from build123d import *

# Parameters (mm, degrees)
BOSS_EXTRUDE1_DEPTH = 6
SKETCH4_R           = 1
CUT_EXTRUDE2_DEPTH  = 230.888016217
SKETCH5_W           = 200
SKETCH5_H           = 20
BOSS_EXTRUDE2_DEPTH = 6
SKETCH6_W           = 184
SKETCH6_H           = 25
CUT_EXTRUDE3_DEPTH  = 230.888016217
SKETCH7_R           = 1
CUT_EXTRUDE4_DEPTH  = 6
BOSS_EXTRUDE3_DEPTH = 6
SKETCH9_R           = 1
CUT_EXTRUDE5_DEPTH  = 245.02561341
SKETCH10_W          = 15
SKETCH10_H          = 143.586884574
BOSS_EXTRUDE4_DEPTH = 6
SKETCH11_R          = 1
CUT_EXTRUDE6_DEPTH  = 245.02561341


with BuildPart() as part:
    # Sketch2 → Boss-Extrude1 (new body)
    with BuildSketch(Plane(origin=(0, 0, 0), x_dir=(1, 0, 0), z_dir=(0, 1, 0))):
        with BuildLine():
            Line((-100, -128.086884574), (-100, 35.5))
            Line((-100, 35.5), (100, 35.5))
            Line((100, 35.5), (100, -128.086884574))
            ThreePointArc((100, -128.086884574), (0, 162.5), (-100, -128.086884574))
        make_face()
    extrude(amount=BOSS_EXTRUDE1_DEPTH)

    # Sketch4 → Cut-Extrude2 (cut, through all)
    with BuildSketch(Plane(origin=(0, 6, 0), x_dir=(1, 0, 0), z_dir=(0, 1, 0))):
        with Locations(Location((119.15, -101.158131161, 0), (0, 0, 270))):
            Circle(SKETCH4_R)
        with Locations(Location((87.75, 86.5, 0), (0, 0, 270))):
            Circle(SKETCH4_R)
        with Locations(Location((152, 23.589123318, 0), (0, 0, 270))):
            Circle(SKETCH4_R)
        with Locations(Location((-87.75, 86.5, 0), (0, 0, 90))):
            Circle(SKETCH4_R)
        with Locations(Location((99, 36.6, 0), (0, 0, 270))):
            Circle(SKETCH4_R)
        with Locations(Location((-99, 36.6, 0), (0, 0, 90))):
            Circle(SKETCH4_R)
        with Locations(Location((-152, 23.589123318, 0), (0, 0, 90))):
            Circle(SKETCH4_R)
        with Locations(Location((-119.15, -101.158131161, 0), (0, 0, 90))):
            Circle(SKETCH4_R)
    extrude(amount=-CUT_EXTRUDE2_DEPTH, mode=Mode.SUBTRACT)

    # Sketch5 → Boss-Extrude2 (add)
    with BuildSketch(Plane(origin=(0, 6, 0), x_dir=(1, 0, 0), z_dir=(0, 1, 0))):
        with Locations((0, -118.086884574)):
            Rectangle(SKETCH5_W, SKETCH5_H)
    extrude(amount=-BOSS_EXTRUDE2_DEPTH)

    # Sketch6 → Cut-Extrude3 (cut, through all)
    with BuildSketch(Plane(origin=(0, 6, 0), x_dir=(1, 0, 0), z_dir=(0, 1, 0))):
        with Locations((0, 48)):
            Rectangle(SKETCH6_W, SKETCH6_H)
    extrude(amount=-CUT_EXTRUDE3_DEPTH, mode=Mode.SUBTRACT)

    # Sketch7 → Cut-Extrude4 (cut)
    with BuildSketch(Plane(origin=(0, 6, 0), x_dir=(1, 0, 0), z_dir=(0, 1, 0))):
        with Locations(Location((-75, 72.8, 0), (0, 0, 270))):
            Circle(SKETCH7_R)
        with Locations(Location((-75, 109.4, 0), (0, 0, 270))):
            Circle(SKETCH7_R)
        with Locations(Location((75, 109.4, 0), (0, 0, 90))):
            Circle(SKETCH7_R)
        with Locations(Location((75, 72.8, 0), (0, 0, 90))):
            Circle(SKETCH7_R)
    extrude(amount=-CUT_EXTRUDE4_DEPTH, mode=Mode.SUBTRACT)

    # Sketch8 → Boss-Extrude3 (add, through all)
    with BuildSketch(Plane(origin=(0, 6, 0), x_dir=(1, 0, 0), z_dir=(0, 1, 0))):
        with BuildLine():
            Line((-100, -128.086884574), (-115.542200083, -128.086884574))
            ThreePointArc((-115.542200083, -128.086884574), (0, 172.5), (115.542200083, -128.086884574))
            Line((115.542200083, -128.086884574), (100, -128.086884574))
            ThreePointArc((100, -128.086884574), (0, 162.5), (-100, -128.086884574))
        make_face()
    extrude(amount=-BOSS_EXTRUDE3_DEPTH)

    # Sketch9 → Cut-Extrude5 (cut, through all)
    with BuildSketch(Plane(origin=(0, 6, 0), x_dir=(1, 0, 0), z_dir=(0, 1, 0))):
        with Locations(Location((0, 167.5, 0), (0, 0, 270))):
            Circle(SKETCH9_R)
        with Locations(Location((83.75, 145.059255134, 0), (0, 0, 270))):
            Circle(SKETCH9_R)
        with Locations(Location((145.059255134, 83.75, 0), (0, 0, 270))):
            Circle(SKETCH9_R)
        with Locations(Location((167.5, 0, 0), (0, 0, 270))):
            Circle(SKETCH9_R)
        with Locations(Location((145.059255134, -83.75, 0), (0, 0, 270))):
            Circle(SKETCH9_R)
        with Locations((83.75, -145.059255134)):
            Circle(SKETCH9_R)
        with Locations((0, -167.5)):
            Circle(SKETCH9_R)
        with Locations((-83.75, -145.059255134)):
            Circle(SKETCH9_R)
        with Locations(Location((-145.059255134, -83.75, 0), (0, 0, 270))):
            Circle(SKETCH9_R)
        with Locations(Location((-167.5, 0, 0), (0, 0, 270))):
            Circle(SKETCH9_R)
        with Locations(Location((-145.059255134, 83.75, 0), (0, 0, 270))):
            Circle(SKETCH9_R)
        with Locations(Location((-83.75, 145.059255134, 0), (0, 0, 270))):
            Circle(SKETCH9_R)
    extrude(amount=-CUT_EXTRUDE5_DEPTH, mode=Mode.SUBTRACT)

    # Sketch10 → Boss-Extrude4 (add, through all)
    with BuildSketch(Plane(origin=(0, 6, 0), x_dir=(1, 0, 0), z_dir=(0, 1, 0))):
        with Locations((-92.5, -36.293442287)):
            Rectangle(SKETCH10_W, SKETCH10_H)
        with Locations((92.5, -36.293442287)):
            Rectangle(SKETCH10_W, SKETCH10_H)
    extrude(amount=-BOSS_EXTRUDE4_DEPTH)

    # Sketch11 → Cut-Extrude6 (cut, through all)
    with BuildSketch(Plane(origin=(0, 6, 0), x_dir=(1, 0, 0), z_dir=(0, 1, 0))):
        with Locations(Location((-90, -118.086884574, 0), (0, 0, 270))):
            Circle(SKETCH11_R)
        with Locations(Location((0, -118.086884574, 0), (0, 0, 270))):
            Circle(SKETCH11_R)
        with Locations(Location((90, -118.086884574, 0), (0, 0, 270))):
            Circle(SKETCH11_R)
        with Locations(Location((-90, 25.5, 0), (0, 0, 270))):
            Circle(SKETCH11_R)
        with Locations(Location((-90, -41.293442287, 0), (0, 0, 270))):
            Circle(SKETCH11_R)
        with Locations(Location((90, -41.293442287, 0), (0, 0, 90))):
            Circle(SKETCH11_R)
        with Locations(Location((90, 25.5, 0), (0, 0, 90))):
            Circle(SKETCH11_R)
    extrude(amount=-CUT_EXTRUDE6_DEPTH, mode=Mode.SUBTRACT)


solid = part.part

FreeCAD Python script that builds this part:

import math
import FreeCAD as App
import Part
import Sketcher

V = App.Vector

doc = App.newDocument("Part")
body = doc.addObject("PartDesign::Body", "Body")

sketch1 = body.newObject("Sketcher::SketchObject", "Sketch")
sketch1.AttachmentSupport = (doc.getObject("XZ_Plane"), [""])
sketch1.MapMode = "FlatFace"
sketch1.addGeometry(Part.LineSegment(V(-100, 128, 0), V(-100, -36, 0)), False)
sketch1.addGeometry(Part.LineSegment(V(-100, -36, 0), V(100, -36, 0)), False)
sketch1.addGeometry(Part.LineSegment(V(100, -36, 0), V(100, 128, 0)), False)
sketch1.addGeometry(Part.ArcOfCircle(Part.Circle(V(0, 0, 0), V(0, 0, 1), 162), math.radians(128), math.radians(412)), False)
sketch1.addConstraint(Sketcher.Constraint("Coincident", 0, 2, 1, 1))
sketch1.addConstraint(Sketcher.Constraint("Coincident", 1, 2, 2, 1))
sketch1.addConstraint(Sketcher.Constraint("Coincident", 2, 2, 3, 2))
sketch1.addConstraint(Sketcher.Constraint("Coincident", 3, 1, 0, 1))
sketch1.addConstraint(Sketcher.Constraint("Vertical", 0))
sketch1.addConstraint(Sketcher.Constraint("Horizontal", 1))
sketch1.addConstraint(Sketcher.Constraint("Vertical", 2))
sketch1.addConstraint(Sketcher.Constraint("Coincident", 3, 3, -1, 1))
sketch1.addConstraint(Sketcher.Constraint("Horizontal", 2, 2, 3, 1))
sketch1.addConstraint(Sketcher.Constraint("Radius", 3, 162.5))
sketch1.addConstraint(Sketcher.Constraint("DistanceX", 1, 1, 1, 2, 200.0))
sketch1.addConstraint(Sketcher.Constraint("DistanceY", 0, 2, -1, 1, 35.5))
pad1 = body.newObject("PartDesign::Pad", "Pad")
pad1.Profile = sketch1
pad1.Length = 6
pad1.Reversed = True

sketch2 = body.newObject("Sketcher::SketchObject", "Sketch001")
sketch2.AttachmentSupport = (doc.getObject("XZ_Plane"), [""])
sketch2.MapMode = "FlatFace"
sketch2.AttachmentOffset = App.Placement(V(0, 0, -6), App.Rotation())
sketch2.addGeometry(Part.Circle(V(119.2, 101.2, 0), V(0, 0, 1), 1), False)
sketch2.addGeometry(Part.Circle(V(87.8, -86.5, 0), V(0, 0, 1), 1), False)
sketch2.addGeometry(Part.Circle(V(152, -23.6, 0), V(0, 0, 1), 1), False)
sketch2.addGeometry(Part.Circle(V(-87.8, -86.5, 0), V(0, 0, 1), 1), False)
sketch2.addGeometry(Part.Circle(V(99, -36.6, 0), V(0, 0, 1), 1), False)
sketch2.addGeometry(Part.Circle(V(-99, -36.6, 0), V(0, 0, 1), 1), False)
sketch2.addGeometry(Part.Circle(V(-152, -23.6, 0), V(0, 0, 1), 1), False)
sketch2.addGeometry(Part.Circle(V(-119.2, 101.2, 0), V(0, 0, 1), 1), False)
sketch2.addConstraint(Sketcher.Constraint("Equal", 0, 1))
sketch2.addConstraint(Sketcher.Constraint("Equal", 1, 2))
sketch2.addConstraint(Sketcher.Constraint("Equal", 2, 3))
sketch2.addConstraint(Sketcher.Constraint("Equal", 3, 4))
sketch2.addConstraint(Sketcher.Constraint("Equal", 4, 5))
sketch2.addConstraint(Sketcher.Constraint("Equal", 5, 6))
sketch2.addConstraint(Sketcher.Constraint("Equal", 6, 7))
sketch2.addConstraint(Sketcher.Constraint("Symmetric", 1, 3, 3, 3, -2))
sketch2.addConstraint(Sketcher.Constraint("Symmetric", 4, 3, 5, 3, -2))
sketch2.addConstraint(Sketcher.Constraint("Symmetric", 2, 3, 6, 3, -2))
sketch2.addConstraint(Sketcher.Constraint("Symmetric", 0, 3, 7, 3, -2))
sketch2.addConstraint(Sketcher.Constraint("Diameter", 0, 2.0))
sketch2.addConstraint(Sketcher.Constraint("DistanceX", -1, 1, 2, 3, 152.0))
sketch2.addConstraint(Sketcher.Constraint("DistanceX", -1, 1, 4, 3, 99.0))
sketch2.addConstraint(Sketcher.Constraint("DistanceY", 1, 3, -1, 1, 86.5))
sketch2.addConstraint(Sketcher.Constraint("DistanceY", 4, 3, -1, 1, 36.6))
sketch2.addConstraint(Sketcher.Constraint("DistanceX", 1, 3, 0, 3, 31.4))
sketch2.addConstraint(Sketcher.Constraint("DistanceX", 3, 3, 1, 3, 175.5))
sketch2.addConstraint(Sketcher.Constraint("DistanceY", -1, 1, 0, 3, 101.158131))
sketch2.addConstraint(Sketcher.Constraint("DistanceY", 2, 3, -1, 1, 23.589123))
pocket1 = body.newObject("PartDesign::Pocket", "Pocket")
pocket1.Profile = sketch2
pocket1.Type = "ThroughAll"
pocket1.Reversed = True

sketch3 = body.newObject("Sketcher::SketchObject", "Sketch002")
sketch3.AttachmentSupport = (doc.getObject("XZ_Plane"), [""])
sketch3.MapMode = "FlatFace"
sketch3.AttachmentOffset = App.Placement(V(0, 0, -6), App.Rotation())
sketch3.addGeometry(Part.LineSegment(V(-100, 108, 0), V(-100, 128, 0)), False)
sketch3.addGeometry(Part.LineSegment(V(-100, 128, 0), V(100, 128, 0)), False)
sketch3.addGeometry(Part.LineSegment(V(100, 128, 0), V(100, 108, 0)), False)
sketch3.addGeometry(Part.LineSegment(V(100, 108, 0), V(-100, 108, 0)), False)
sketch3.addConstraint(Sketcher.Constraint("Coincident", 0, 2, 1, 1))
sketch3.addConstraint(Sketcher.Constraint("Coincident", 1, 2, 2, 1))
sketch3.addConstraint(Sketcher.Constraint("Coincident", 2, 2, 3, 1))
sketch3.addConstraint(Sketcher.Constraint("Coincident", 3, 2, 0, 1))
sketch3.addConstraint(Sketcher.Constraint("Vertical", 0))
sketch3.addConstraint(Sketcher.Constraint("Horizontal", 1))
sketch3.addConstraint(Sketcher.Constraint("Vertical", 2))
sketch3.addConstraint(Sketcher.Constraint("Horizontal", 3))
sketch3.addConstraint(Sketcher.Constraint("DistanceX", 1, 1, 1, 2, 200.0))
sketch3.addConstraint(Sketcher.Constraint("DistanceY", 0, 1, 0, 2, 20.0))
sketch3.addConstraint(Sketcher.Constraint("DistanceX", 0, 2, -1, 1, 100.0))
sketch3.addConstraint(Sketcher.Constraint("DistanceY", -1, 1, 0, 2, 128.086885))
pad2 = body.newObject("PartDesign::Pad", "Pad001")
pad2.Profile = sketch3
pad2.Length = 6

sketch4 = body.newObject("Sketcher::SketchObject", "Sketch003")
sketch4.AttachmentSupport = (doc.getObject("XZ_Plane"), [""])
sketch4.MapMode = "FlatFace"
sketch4.AttachmentOffset = App.Placement(V(0, 0, -6), App.Rotation())
sketch4.addGeometry(Part.LineSegment(V(-92, -60, 0), V(-92, -36, 0)), False)
sketch4.addGeometry(Part.LineSegment(V(-92, -36, 0), V(92, -36, 0)), False)
sketch4.addGeometry(Part.LineSegment(V(92, -36, 0), V(92, -60, 0)), False)
sketch4.addGeometry(Part.LineSegment(V(92, -60, 0), V(-92, -60, 0)), False)
sketch4.addConstraint(Sketcher.Constraint("Coincident", 0, 2, 1, 1))
sketch4.addConstraint(Sketcher.Constraint("Coincident", 1, 2, 2, 1))
sketch4.addConstraint(Sketcher.Constraint("Coincident", 2, 2, 3, 1))
sketch4.addConstraint(Sketcher.Constraint("Coincident", 3, 2, 0, 1))
sketch4.addConstraint(Sketcher.Constraint("Vertical", 0))
sketch4.addConstraint(Sketcher.Constraint("Horizontal", 1))
sketch4.addConstraint(Sketcher.Constraint("Vertical", 2))
sketch4.addConstraint(Sketcher.Constraint("Horizontal", 3))
sketch4.addConstraint(Sketcher.Constraint("DistanceX", 1, 1, 1, 2, 184.0))
sketch4.addConstraint(Sketcher.Constraint("DistanceY", 0, 1, 0, 2, 25.0))
sketch4.addConstraint(Sketcher.Constraint("DistanceX", 0, 2, -1, 1, 92.0))
sketch4.addConstraint(Sketcher.Constraint("DistanceY", 0, 2, -1, 1, 35.5))
pocket2 = body.newObject("PartDesign::Pocket", "Pocket001")
pocket2.Profile = sketch4
pocket2.Type = "ThroughAll"
pocket2.Reversed = True

sketch5 = body.newObject("Sketcher::SketchObject", "Sketch004")
sketch5.AttachmentSupport = (doc.getObject("XZ_Plane"), [""])
sketch5.MapMode = "FlatFace"
sketch5.AttachmentOffset = App.Placement(V(0, 0, -6), App.Rotation())
sketch5.addGeometry(Part.Circle(V(-75, -72.8, 0), V(0, 0, 1), 1), False)
sketch5.addGeometry(Part.Circle(V(-75, -109.4, 0), V(0, 0, 1), 1), False)
sketch5.addGeometry(Part.Circle(V(75, -109.4, 0), V(0, 0, 1), 1), False)
sketch5.addGeometry(Part.Circle(V(75, -72.8, 0), V(0, 0, 1), 1), False)
sketch5.addConstraint(Sketcher.Constraint("Equal", 0, 1))
sketch5.addConstraint(Sketcher.Constraint("Equal", 1, 2))
sketch5.addConstraint(Sketcher.Constraint("Equal", 2, 3))
sketch5.addConstraint(Sketcher.Constraint("Symmetric", 1, 3, 2, 3, -2))
sketch5.addConstraint(Sketcher.Constraint("Symmetric", 0, 3, 3, 3, -2))
sketch5.addConstraint(Sketcher.Constraint("Vertical", 0, 3, 1, 3))
sketch5.addConstraint(Sketcher.Constraint("Diameter", 0, 2.0))
sketch5.addConstraint(Sketcher.Constraint("DistanceX", 0, 3, -1, 1, 75.0))
sketch5.addConstraint(Sketcher.Constraint("DistanceY", 0, 3, -1, 1, 72.8))
sketch5.addConstraint(Sketcher.Constraint("DistanceY", 1, 3, -1, 1, 109.4))
pocket3 = body.newObject("PartDesign::Pocket", "Pocket002")
pocket3.Profile = sketch5
pocket3.Length = 6
pocket3.Reversed = True

sketch6 = body.newObject("Sketcher::SketchObject", "Sketch005")
sketch6.AttachmentSupport = (doc.getObject("XZ_Plane"), [""])
sketch6.MapMode = "FlatFace"
sketch6.AttachmentOffset = App.Placement(V(0, 0, -6), App.Rotation())
sketch6.addGeometry(Part.LineSegment(V(-116, 128, 0), V(-100, 128, 0)), False)
sketch6.addGeometry(Part.ArcOfCircle(Part.Circle(V(0, 0, 0), V(0, 0, 1), 162), math.radians(128), math.radians(412)), False)
sketch6.addGeometry(Part.LineSegment(V(100, 128, 0), V(116, 128, 0)), False)
sketch6.addGeometry(Part.ArcOfCircle(Part.Circle(V(0, 0, 0), V(0, 0, 1), 172), math.radians(132), math.radians(408)), False)
sketch6.addConstraint(Sketcher.Constraint("Coincident", 0, 2, 1, 1))
sketch6.addConstraint(Sketcher.Constraint("Coincident", 1, 2, 2, 1))
sketch6.addConstraint(Sketcher.Constraint("Coincident", 2, 2, 3, 2))
sketch6.addConstraint(Sketcher.Constraint("Coincident", 3, 1, 0, 1))
sketch6.addConstraint(Sketcher.Constraint("Horizontal", 0))
sketch6.addConstraint(Sketcher.Constraint("Horizontal", 2))
sketch6.addConstraint(Sketcher.Constraint("Coincident", 1, 3, -1, 1))
sketch6.addConstraint(Sketcher.Constraint("Coincident", 3, 3, -1, 1))
sketch6.addConstraint(Sketcher.Constraint("Horizontal", 0, 2, 1, 2))
sketch6.addConstraint(Sketcher.Constraint("Radius", 1, 162.5))
sketch6.addConstraint(Sketcher.Constraint("Radius", 3, 172.5))
sketch6.addConstraint(Sketcher.Constraint("DistanceX", 0, 2, -1, 1, 100.0))
pad3 = body.newObject("PartDesign::Pad", "Pad002")
pad3.Profile = sketch6
pad3.Length = 6

sketch7 = body.newObject("Sketcher::SketchObject", "Sketch006")
sketch7.AttachmentSupport = (doc.getObject("XZ_Plane"), [""])
sketch7.MapMode = "FlatFace"
sketch7.AttachmentOffset = App.Placement(V(0, 0, -6), App.Rotation())
sketch7.addGeometry(Part.Circle(V(0, -167.5, 0), V(0, 0, 1), 1), False)
sketch7.addGeometry(Part.Circle(V(83.8, -145.1, 0), V(0, 0, 1), 1), False)
sketch7.addGeometry(Part.Circle(V(145.1, -83.8, 0), V(0, 0, 1), 1), False)
sketch7.addGeometry(Part.Circle(V(167.5, 0, 0), V(0, 0, 1), 1), False)
sketch7.addGeometry(Part.Circle(V(145.1, 83.8, 0), V(0, 0, 1), 1), False)
sketch7.addGeometry(Part.Circle(V(83.8, 145.1, 0), V(0, 0, 1), 1), False)
sketch7.addGeometry(Part.Circle(V(0, 167.5, 0), V(0, 0, 1), 1), False)
sketch7.addGeometry(Part.Circle(V(-83.8, 145.1, 0), V(0, 0, 1), 1), False)
sketch7.addGeometry(Part.Circle(V(-145.1, 83.8, 0), V(0, 0, 1), 1), False)
sketch7.addGeometry(Part.Circle(V(-167.5, 0, 0), V(0, 0, 1), 1), False)
sketch7.addGeometry(Part.Circle(V(-145.1, -83.8, 0), V(0, 0, 1), 1), False)
sketch7.addGeometry(Part.Circle(V(-83.8, -145.1, 0), V(0, 0, 1), 1), False)
sketch7.addConstraint(Sketcher.Constraint("Equal", 0, 1))
sketch7.addConstraint(Sketcher.Constraint("Equal", 1, 2))
sketch7.addConstraint(Sketcher.Constraint("Equal", 2, 3))
sketch7.addConstraint(Sketcher.Constraint("Equal", 3, 4))
sketch7.addConstraint(Sketcher.Constraint("Equal", 4, 5))
sketch7.addConstraint(Sketcher.Constraint("Equal", 5, 6))
sketch7.addConstraint(Sketcher.Constraint("Equal", 6, 7))
sketch7.addConstraint(Sketcher.Constraint("Equal", 7, 8))
sketch7.addConstraint(Sketcher.Constraint("Equal", 8, 9))
sketch7.addConstraint(Sketcher.Constraint("Equal", 9, 10))
sketch7.addConstraint(Sketcher.Constraint("Equal", 10, 11))
sketch7.addConstraint(Sketcher.Constraint("Symmetric", 0, 3, 6, 3, -1, 1))
sketch7.addConstraint(Sketcher.Constraint("Symmetric", 1, 3, 7, 3, -1, 1))
sketch7.addConstraint(Sketcher.Constraint("Symmetric", 2, 3, 8, 3, -1, 1))
sketch7.addConstraint(Sketcher.Constraint("Symmetric", 3, 3, 9, 3, -1, 1))
sketch7.addConstraint(Sketcher.Constraint("Symmetric", 4, 3, 10, 3, -1, 1))
sketch7.addConstraint(Sketcher.Constraint("Symmetric", 5, 3, 11, 3, -1, 1))
sketch7.addConstraint(Sketcher.Constraint("Symmetric", 5, 3, 7, 3, -2))
sketch7.addConstraint(Sketcher.Constraint("Symmetric", 4, 3, 8, 3, -2))
sketch7.addConstraint(Sketcher.Constraint("PointOnObject", 0, 3, -2))
sketch7.addConstraint(Sketcher.Constraint("PointOnObject", 3, 3, -1))
sketch7.addConstraint(Sketcher.Constraint("Diameter", 0, 2.0))
sketch7.addConstraint(Sketcher.Constraint("DistanceY", 0, 3, -1, 1, 167.5))
sketch7.addConstraint(Sketcher.Constraint("DistanceX", -1, 1, 3, 3, 167.5))
sketch7.addConstraint(Sketcher.Constraint("DistanceY", 2, 3, 4, 3, 167.5))
sketch7.addConstraint(Sketcher.Constraint("DistanceX", 7, 3, 5, 3, 167.5))
sketch7.addConstraint(Sketcher.Constraint("DistanceY", 1, 3, 5, 3, 290.11851))
sketch7.addConstraint(Sketcher.Constraint("DistanceX", 8, 3, 4, 3, 290.11851))
pocket4 = body.newObject("PartDesign::Pocket", "Pocket003")
pocket4.Profile = sketch7
pocket4.Type = "ThroughAll"
pocket4.Reversed = True

sketch8 = body.newObject("Sketcher::SketchObject", "Sketch007")
sketch8.AttachmentSupport = (doc.getObject("XZ_Plane"), [""])
sketch8.MapMode = "FlatFace"
sketch8.AttachmentOffset = App.Placement(V(0, 0, -6), App.Rotation())
sketch8.addGeometry(Part.LineSegment(V(-100, -36, 0), V(-100, 108, 0)), False)
sketch8.addGeometry(Part.LineSegment(V(-100, 108, 0), V(-85, 108, 0)), False)
sketch8.addGeometry(Part.LineSegment(V(-85, 108, 0), V(-85, -36, 0)), False)
sketch8.addGeometry(Part.LineSegment(V(-85, -36, 0), V(-100, -36, 0)), False)
sketch8.addGeometry(Part.LineSegment(V(85, -36, 0), V(85, 108, 0)), False)
sketch8.addGeometry(Part.LineSegment(V(85, 108, 0), V(100, 108, 0)), False)
sketch8.addGeometry(Part.LineSegment(V(100, 108, 0), V(100, -36, 0)), False)
sketch8.addGeometry(Part.LineSegment(V(100, -36, 0), V(85, -36, 0)), False)
sketch8.addConstraint(Sketcher.Constraint("Coincident", 0, 2, 1, 1))
sketch8.addConstraint(Sketcher.Constraint("Coincident", 1, 2, 2, 1))
sketch8.addConstraint(Sketcher.Constraint("Coincident", 2, 2, 3, 1))
sketch8.addConstraint(Sketcher.Constraint("Coincident", 3, 2, 0, 1))
sketch8.addConstraint(Sketcher.Constraint("Coincident", 4, 2, 5, 1))
sketch8.addConstraint(Sketcher.Constraint("Coincident", 5, 2, 6, 1))
sketch8.addConstraint(Sketcher.Constraint("Coincident", 6, 2, 7, 1))
sketch8.addConstraint(Sketcher.Constraint("Coincident", 7, 2, 4, 1))
sketch8.addConstraint(Sketcher.Constraint("Vertical", 0))
sketch8.addConstraint(Sketcher.Constraint("Horizontal", 1))
sketch8.addConstraint(Sketcher.Constraint("Vertical", 2))
sketch8.addConstraint(Sketcher.Constraint("Horizontal", 3))
sketch8.addConstraint(Sketcher.Constraint("Vertical", 4))
sketch8.addConstraint(Sketcher.Constraint("Horizontal", 5))
sketch8.addConstraint(Sketcher.Constraint("Vertical", 6))
sketch8.addConstraint(Sketcher.Constraint("Horizontal", 7))
sketch8.addConstraint(Sketcher.Constraint("Symmetric", 1, 2, 4, 2, -2))
sketch8.addConstraint(Sketcher.Constraint("Symmetric", 3, 2, 6, 2, -2))
sketch8.addConstraint(Sketcher.Constraint("DistanceX", 1, 1, 1, 2, 15.0))
sketch8.addConstraint(Sketcher.Constraint("DistanceX", 0, 2, -1, 1, 100.0))
sketch8.addConstraint(Sketcher.Constraint("DistanceY", 2, 2, -1, 1, 35.5))
sketch8.addConstraint(Sketcher.Constraint("DistanceY", 0, 1, 0, 2, 143.586885))
pad4 = body.newObject("PartDesign::Pad", "Pad003")
pad4.Profile = sketch8
pad4.Length = 6

sketch9 = body.newObject("Sketcher::SketchObject", "Sketch008")
sketch9.AttachmentSupport = (doc.getObject("XZ_Plane"), [""])
sketch9.MapMode = "FlatFace"
sketch9.AttachmentOffset = App.Placement(V(0, 0, -6), App.Rotation())
sketch9.addGeometry(Part.Circle(V(-90, 118.1, 0), V(0, 0, 1), 1), False)
sketch9.addGeometry(Part.Circle(V(0, 118.1, 0), V(0, 0, 1), 1), False)
sketch9.addGeometry(Part.Circle(V(90, 118.1, 0), V(0, 0, 1), 1), False)
sketch9.addGeometry(Part.Circle(V(-90, -25.5, 0), V(0, 0, 1), 1), False)
sketch9.addGeometry(Part.Circle(V(-90, 41.3, 0), V(0, 0, 1), 1), False)
sketch9.addGeometry(Part.Circle(V(90, 41.3, 0), V(0, 0, 1), 1), False)
sketch9.addGeometry(Part.Circle(V(90, -25.5, 0), V(0, 0, 1), 1), False)
sketch9.addConstraint(Sketcher.Constraint("Equal", 0, 1))
sketch9.addConstraint(Sketcher.Constraint("Equal", 1, 2))
sketch9.addConstraint(Sketcher.Constraint("Equal", 2, 3))
sketch9.addConstraint(Sketcher.Constraint("Equal", 3, 4))
sketch9.addConstraint(Sketcher.Constraint("Equal", 4, 5))
sketch9.addConstraint(Sketcher.Constraint("Equal", 5, 6))
sketch9.addConstraint(Sketcher.Constraint("Symmetric", 0, 3, 2, 3, -2))
sketch9.addConstraint(Sketcher.Constraint("Symmetric", 4, 3, 5, 3, -2))
sketch9.addConstraint(Sketcher.Constraint("Symmetric", 3, 3, 6, 3, -2))
sketch9.addConstraint(Sketcher.Constraint("PointOnObject", 1, 3, -2))
sketch9.addConstraint(Sketcher.Constraint("Horizontal", 0, 3, 1, 3))
sketch9.addConstraint(Sketcher.Constraint("Vertical", 0, 3, 3, 3))
sketch9.addConstraint(Sketcher.Constraint("Vertical", 3, 3, 4, 3))
sketch9.addConstraint(Sketcher.Constraint("Diameter", 0, 2.0))
sketch9.addConstraint(Sketcher.Constraint("DistanceX", 0, 3, -1, 1, 90.0))
sketch9.addConstraint(Sketcher.Constraint("DistanceY", 3, 3, -1, 1, 25.5))
sketch9.addConstraint(Sketcher.Constraint("DistanceY", -1, 1, 0, 3, 118.086885))
sketch9.addConstraint(Sketcher.Constraint("DistanceY", -1, 1, 4, 3, 41.293442))
pocket5 = body.newObject("PartDesign::Pocket", "Pocket004")
pocket5.Profile = sketch9
pocket5.Type = "ThroughAll"
pocket5.Reversed = True

doc.recompute()
